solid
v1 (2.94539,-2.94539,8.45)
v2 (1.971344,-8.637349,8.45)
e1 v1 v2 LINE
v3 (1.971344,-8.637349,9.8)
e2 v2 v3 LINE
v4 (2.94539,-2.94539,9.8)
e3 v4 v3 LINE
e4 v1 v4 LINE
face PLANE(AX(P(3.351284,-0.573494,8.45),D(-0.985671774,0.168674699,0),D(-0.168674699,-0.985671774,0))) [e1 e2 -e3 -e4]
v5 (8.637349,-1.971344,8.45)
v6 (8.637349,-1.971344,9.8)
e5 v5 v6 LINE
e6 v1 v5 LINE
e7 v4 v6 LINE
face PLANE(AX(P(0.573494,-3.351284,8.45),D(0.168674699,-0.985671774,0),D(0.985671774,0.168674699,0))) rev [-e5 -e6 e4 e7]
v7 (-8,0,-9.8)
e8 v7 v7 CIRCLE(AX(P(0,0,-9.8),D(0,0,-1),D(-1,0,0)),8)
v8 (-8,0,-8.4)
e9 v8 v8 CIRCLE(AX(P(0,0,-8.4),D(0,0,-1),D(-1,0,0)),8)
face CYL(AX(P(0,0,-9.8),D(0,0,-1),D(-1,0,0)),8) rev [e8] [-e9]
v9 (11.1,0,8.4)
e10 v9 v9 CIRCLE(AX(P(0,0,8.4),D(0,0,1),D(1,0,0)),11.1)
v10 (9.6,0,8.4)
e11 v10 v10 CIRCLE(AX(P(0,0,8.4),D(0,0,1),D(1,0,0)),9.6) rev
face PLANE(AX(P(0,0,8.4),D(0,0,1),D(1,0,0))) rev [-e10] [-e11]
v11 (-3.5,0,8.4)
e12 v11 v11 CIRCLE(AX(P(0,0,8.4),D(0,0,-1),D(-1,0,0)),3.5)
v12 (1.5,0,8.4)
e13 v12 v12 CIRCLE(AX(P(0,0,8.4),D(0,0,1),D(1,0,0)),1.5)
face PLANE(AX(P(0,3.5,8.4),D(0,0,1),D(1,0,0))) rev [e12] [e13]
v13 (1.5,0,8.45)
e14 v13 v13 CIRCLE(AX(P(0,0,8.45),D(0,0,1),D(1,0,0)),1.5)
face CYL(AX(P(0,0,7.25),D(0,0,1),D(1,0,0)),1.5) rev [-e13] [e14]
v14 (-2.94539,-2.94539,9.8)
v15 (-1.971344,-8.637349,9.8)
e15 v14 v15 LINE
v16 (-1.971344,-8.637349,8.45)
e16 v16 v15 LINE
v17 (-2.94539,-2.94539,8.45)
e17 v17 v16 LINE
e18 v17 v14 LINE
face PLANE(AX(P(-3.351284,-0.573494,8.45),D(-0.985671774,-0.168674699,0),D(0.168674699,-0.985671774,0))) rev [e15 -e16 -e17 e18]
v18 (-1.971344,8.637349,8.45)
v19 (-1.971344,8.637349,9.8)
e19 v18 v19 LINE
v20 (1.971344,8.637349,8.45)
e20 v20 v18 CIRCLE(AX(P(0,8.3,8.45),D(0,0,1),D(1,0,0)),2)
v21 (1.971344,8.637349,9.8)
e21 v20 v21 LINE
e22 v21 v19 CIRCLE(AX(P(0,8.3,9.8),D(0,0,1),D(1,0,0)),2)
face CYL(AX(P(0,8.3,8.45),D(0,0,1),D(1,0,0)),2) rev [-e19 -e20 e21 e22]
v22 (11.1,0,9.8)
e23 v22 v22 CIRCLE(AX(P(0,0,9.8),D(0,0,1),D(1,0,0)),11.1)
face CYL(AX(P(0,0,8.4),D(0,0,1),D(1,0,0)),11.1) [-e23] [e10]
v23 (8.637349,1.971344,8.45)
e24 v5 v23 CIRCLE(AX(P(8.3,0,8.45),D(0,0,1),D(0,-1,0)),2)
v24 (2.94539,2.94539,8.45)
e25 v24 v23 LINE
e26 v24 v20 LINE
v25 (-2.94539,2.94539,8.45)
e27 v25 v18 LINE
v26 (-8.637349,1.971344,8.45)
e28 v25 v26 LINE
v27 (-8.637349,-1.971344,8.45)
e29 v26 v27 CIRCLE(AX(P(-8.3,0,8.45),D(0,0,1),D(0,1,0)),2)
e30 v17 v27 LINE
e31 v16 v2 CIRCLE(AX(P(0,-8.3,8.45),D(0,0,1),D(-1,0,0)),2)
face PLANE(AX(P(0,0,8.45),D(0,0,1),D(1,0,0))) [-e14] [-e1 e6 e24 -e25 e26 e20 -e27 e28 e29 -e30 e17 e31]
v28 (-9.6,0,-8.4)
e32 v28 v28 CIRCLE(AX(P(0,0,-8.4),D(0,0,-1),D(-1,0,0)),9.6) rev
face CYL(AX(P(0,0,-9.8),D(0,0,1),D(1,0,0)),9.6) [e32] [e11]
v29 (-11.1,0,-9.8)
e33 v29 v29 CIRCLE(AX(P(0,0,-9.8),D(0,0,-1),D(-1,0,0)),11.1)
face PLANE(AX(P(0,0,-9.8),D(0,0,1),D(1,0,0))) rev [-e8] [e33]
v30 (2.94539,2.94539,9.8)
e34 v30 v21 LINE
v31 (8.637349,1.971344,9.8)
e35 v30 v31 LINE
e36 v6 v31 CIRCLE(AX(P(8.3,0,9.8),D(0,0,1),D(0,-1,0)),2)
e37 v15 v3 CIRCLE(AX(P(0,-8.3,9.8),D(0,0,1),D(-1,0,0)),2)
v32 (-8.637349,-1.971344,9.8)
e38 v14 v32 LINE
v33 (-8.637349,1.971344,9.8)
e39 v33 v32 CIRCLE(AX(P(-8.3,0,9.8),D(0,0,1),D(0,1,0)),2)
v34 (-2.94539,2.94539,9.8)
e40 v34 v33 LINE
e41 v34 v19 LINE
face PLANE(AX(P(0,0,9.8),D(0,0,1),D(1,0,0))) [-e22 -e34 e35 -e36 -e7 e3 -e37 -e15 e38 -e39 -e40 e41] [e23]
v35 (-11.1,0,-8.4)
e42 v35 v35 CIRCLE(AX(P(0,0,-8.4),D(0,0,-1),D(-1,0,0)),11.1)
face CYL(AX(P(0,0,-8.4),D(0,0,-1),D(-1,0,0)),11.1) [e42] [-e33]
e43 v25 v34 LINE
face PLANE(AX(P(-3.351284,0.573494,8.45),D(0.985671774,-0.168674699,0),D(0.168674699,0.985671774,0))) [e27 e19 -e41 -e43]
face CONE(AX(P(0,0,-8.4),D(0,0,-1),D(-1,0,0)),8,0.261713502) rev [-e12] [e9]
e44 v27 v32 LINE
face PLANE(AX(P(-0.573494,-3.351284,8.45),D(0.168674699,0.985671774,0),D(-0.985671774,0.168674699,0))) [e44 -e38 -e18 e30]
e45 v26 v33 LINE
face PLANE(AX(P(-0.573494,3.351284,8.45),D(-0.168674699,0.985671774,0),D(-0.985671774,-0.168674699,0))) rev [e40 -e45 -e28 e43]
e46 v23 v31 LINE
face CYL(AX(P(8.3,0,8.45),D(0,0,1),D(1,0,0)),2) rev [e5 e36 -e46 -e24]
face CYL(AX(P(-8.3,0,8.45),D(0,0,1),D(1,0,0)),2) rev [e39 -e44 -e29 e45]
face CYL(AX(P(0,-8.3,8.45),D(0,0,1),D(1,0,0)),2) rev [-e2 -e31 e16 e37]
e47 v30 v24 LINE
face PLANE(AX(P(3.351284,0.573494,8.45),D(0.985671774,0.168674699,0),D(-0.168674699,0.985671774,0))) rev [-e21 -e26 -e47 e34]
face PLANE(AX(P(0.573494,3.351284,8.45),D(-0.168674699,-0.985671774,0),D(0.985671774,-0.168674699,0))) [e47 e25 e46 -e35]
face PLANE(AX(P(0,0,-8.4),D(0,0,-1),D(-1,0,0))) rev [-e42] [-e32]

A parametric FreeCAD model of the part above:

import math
import FreeCAD as App
import Part
import Sketcher
Q = App.Units.Quantity


def add_polygon(sketch, points):
    """Adds a closed chain of lines whose ends are joined by coincident constraints."""
    first, n = sketch.GeometryCount, len(points)
    for a, b in zip(points, points[1:] + points[:1]):
        sketch.addGeometry(Part.LineSegment(App.Vector(*a, 0), App.Vector(*b, 0)), False)
    for i in range(n):
        sketch.addConstraint(Sketcher.Constraint("Coincident", first + i, 2, first + (i + 1) % n, 1))

doc = App.newDocument("Part")
params = doc.addObject("Spreadsheet::Sheet", "Params")
for row, (alias, value) in enumerate([
    ("sketch1_diameter", "19.2 mm"),
    ("pad1_length", "9.8 mm"),
    ("pad1_length2", "9.8 mm"),
    ("sketch2_diameter", "22.2 mm"),
    ("pad2_length", "1.4 mm"),
    ("sketch3_diameter", "22.2 mm"),
    ("pad3_length", "1.4 mm"),
    ("sketch4_radius", "2 mm"),
    ("sketch4_radius2", "3.4 mm"),
    ("pocket1_length", "1.35 mm"),
    ("sketch5_width", "8 mm"),
    ("sketch5_width2", "3.5 mm"),
    ("sketch5_height", "1.4 mm"),
    ("sketch5_height2", "18.2 mm"),
    ("groove_angle", "360 deg"),
    ("sketch6_diameter", "3 mm"),
    ("pocket2_length", "1.2 mm"),
], start=1):
    params.set(f"A{row}", alias)
    params.set(f"B{row}", "=" + value)
    params.setAlias(f"B{row}", alias)

body = doc.addObject("PartDesign::Body", "Body")

sketch1 = body.newObject("Sketcher::SketchObject", "Sketch")
sketch1.AttachmentSupport = (doc.getObject("XY_Plane"), [""])
sketch1.MapMode = "FlatFace"
sketch1.addGeometry(Part.Circle(App.Vector(0, 0, 0), App.Vector(0, 0, 1), 9.6), False)
sketch1.addConstraint(Sketcher.Constraint("Coincident", 0, 3, -1, 1))
sketch1.addConstraint(Sketcher.Constraint("Diameter", 0, Q("19.2 mm")))
sketch1.setExpression("Constraints[1]", "Params.sketch1_diameter")
pad1 = body.newObject("PartDesign::Pad", "Pad")
pad1.Profile = sketch1
pad1.Type = "TwoLengths"
pad1.setExpression("Length", "Params.pad1_length")
pad1.setExpression("Length2", "Params.pad1_length2")

sketch2 = body.newObject("Sketcher::SketchObject", "Sketch001")
sketch2.AttachmentSupport = (doc.getObject("XY_Plane"), [""])
sketch2.MapMode = "FlatFace"
sketch2.AttachmentOffset = App.Placement(App.Vector(0, 0, 9.8), App.Rotation())
sketch2.addGeometry(Part.Circle(App.Vector(0, 0, 0), App.Vector(0, 0, 1), 11.1), False)
sketch2.addConstraint(Sketcher.Constraint("Coincident", 0, 3, -1, 1))
sketch2.addConstraint(Sketcher.Constraint("Diameter", 0, Q("22.2 mm")))
sketch2.setExpression("Constraints[1]", "Params.sketch2_diameter")
pad2 = body.newObject("PartDesign::Pad", "Pad001")
pad2.Profile = sketch2
pad2.setExpression("Length", "Params.pad2_length")
pad2.Reversed = True

sketch3 = body.newObject("Sketcher::SketchObject", "Sketch002")
sketch3.AttachmentSupport = (doc.getObject("XY_Plane"), [""])
sketch3.MapMode = "FlatFace"
sketch3.AttachmentOffset = App.Placement(App.Vector(0, 0, -8.4), App.Rotation())
sketch3.addGeometry(Part.Circle(App.Vector(0, 0, 0), App.Vector(0, 0, 1), 11.1), False)
sketch3.addConstraint(Sketcher.Constraint("Coincident", 0, 3, -1, 1))
sketch3.addConstraint(Sketcher.Constraint("Diameter", 0, Q("22.2 mm")))
sketch3.setExpression("Constraints[1]", "Params.sketch3_diameter")
pad3 = body.newObject("PartDesign::Pad", "Pad002")
pad3.Profile = sketch3
pad3.setExpression("Length", "Params.pad3_length")
pad3.Reversed = True

sketch4 = body.newObject("Sketcher::SketchObject", "Sketch003")
sketch4.AttachmentSupport = (doc.getObject("XY_Plane"), [""])
sketch4.MapMode = "FlatFace"
sketch4.AttachmentOffset = App.Placement(App.Vector(0, 0, 9.8), App.Rotation())
sketch4.addGeometry(Part.ArcOfCircle(Part.Circle(App.Vector(0, 8.3, 0), App.Vector(0, 0, 1), 2), math.radians(9.710772), math.radians(170.289228)), False)
sketch4.addGeometry(Part.LineSegment(App.Vector(-1.971344, 8.637349, 0), App.Vector(-3.351284, 0.573494, 0)), False)
sketch4.addGeometry(Part.ArcOfCircle(Part.Circle(App.Vector(0, 0, 0), App.Vector(0, 0, 1), 3.4), math.radians(170.289228), math.radians(369.710772)), False)
sketch4.addGeometry(Part.LineSegment(App.Vector(3.351284, 0.573494, 0), App.Vector(1.971344, 8.637349, 0)), False)
sketch4.addConstraint(Sketcher.Constraint("Tangent", 0, 2, 1, 1))
sketch4.addConstraint(Sketcher.Constraint("Tangent", 1, 2, 2, 1))
sketch4.addConstraint(Sketcher.Constraint("Tangent", 2, 2, 3, 1))
sketch4.addConstraint(Sketcher.Constraint("Tangent", 3, 2, 0, 1))
sketch4.addConstraint(Sketcher.Constraint("Coincident", 2, 3, -1, 1))
sketch4.addConstraint(Sketcher.Constraint("PointOnObject", 0, 3, -2))
sketch4.addConstraint(Sketcher.Constraint("Radius", 0, Q("2 mm")))
sketch4.addConstraint(Sketcher.Constraint("Radius", 2, Q("3.4 mm")))
sketch4.addConstraint(Sketcher.Constraint("DistanceY", -1, 1, 0, 3, Q("8.3 mm")))
sketch4.setExpression("Constraints[6]", "Params.sketch4_radius")
sketch4.setExpression("Constraints[7]", "Params.sketch4_radius2")
pocket1 = body.newObject("PartDesign::Pocket", "Pocket")
pocket1.Profile = sketch4
pocket1.setExpression("Length", "Params.pocket1_length")
doc.recompute()

polarpattern = body.newObject("PartDesign::PolarPattern", "PolarPattern")
polarpattern.Originals = [pocket1]
polarpattern.Axis = (doc.getObject("Z_Axis"), [""])
polarpattern.Angle = 360
polarpattern.Occurrences = 4
body.Tip = polarpattern

sketch5 = body.newObject("Sketcher::SketchObject", "Sketch004")
sketch5.AttachmentSupport = (doc.getObject("YZ_Plane"), [""])
sketch5.MapMode = "FlatFace"
add_polygon(sketch5, [(0, -9.8), (8, -9.8), (8, -8.4), (3.5, 8.4), (0, 8.4)])
sketch5.addConstraint(Sketcher.Constraint("Horizontal", 0))
sketch5.addConstraint(Sketcher.Constraint("Vertical", 1))
sketch5.addConstraint(Sketcher.Constraint("Horizontal", 3))
sketch5.addConstraint(Sketcher.Constraint("Vertical", 4))
sketch5.addConstraint(Sketcher.Constraint("PointOnObject", 3, 2, -2))
sketch5.addConstraint(Sketcher.Constraint("DistanceX", 0, 1, 0, 2, Q("8 mm")))
sketch5.addConstraint(Sketcher.Constraint("DistanceX", 3, 2, 3, 1, Q("3.5 mm")))
sketch5.addConstraint(Sketcher.Constraint("DistanceY", 1, 1, 1, 2, Q("1.4 mm")))
sketch5.addConstraint(Sketcher.Constraint("DistanceY", 4, 2, 4, 1, Q("18.2 mm")))
sketch5.addConstraint(Sketcher.Constraint("DistanceY", 0, 2, -1, 1, Q("9.8 mm")))
sketch5.setExpression("Constraints[10]", "Params.sketch5_width")
sketch5.setExpression("Constraints[11]", "Params.sketch5_width2")
sketch5.setExpression("Constraints[12]", "Params.sketch5_height")
sketch5.setExpression("Constraints[13]", "Params.sketch5_height2")
groove = body.newObject("PartDesign::Groove", "Groove")
groove.Profile = sketch5
groove.ReferenceAxis = (sketch5, ["V_Axis"])
groove.setExpression("Angle", "Params.groove_angle")

sketch6 = body.newObject("Sketcher::SketchObject", "Sketch005")
sketch6.AttachmentSupport = (doc.getObject("XY_Plane"), [""])
sketch6.MapMode = "FlatFace"
sketch6.AttachmentOffset = App.Placement(App.Vector(0, 0, 8.45), App.Rotation())
sketch6.addGeometry(Part.Circle(App.Vector(0, 0, 0), App.Vector(0, 0, 1), 1.5), False)
sketch6.addConstraint(Sketcher.Constraint("Coincident", 0, 3, -1, 1))
sketch6.addConstraint(Sketcher.Constraint("Diameter", 0, Q("3 mm")))
sketch6.setExpression("Constraints[1]", "Params.sketch6_diameter")
pocket2 = body.newObject("PartDesign::Pocket", "Pocket001")
pocket2.Profile = sketch6
pocket2.setExpression("Length", "Params.pocket2_length")

doc.recompute()
